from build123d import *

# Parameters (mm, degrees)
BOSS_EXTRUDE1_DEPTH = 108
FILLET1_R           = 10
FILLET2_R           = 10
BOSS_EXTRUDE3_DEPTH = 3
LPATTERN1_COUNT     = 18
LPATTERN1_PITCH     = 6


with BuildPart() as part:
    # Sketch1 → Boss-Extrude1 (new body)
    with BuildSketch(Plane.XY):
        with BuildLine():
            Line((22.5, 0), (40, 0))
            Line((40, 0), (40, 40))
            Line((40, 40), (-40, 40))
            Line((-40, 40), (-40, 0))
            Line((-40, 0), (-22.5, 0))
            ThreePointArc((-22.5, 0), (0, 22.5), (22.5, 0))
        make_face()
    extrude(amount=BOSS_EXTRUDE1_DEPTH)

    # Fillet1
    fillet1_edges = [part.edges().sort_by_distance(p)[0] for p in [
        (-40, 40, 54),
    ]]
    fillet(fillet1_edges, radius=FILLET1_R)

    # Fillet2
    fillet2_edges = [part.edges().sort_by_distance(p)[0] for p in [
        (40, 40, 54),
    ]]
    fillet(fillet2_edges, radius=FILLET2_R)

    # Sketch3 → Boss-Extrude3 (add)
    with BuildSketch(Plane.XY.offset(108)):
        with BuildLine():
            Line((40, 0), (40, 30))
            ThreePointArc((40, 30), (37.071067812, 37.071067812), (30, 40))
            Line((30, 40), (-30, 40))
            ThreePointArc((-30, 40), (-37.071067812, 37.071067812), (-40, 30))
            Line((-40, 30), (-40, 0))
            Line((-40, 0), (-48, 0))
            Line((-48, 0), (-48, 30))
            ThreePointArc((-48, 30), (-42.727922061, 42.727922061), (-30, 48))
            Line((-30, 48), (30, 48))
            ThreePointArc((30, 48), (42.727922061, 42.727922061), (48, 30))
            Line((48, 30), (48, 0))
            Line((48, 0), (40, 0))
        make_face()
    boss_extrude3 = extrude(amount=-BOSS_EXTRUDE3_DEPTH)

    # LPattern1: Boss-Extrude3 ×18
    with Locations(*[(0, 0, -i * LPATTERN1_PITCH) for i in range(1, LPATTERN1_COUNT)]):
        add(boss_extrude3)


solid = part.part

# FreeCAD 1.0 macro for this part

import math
import FreeCAD as App
import Part
import Sketcher
Q = App.Units.Quantity


def edges_at(feature, points):
    """Names of the edges that pass closest to the given points."""
    edges = feature.Shape.Edges
    near = lambda p: min(range(len(edges)), key=lambda i: edges[i].distToShape(Part.Vertex(*p))[0])
    return sorted({f"Edge{near(p) + 1}" for p in points})

doc = App.newDocument("Part")
params = doc.addObject("Spreadsheet::Sheet", "Params")
for row, (alias, value) in enumerate([
    ("sketch1_radius", "22.5 mm"),
    ("sketch1_width", "80 mm"),
    ("sketch1_height", "40 mm"),
    ("pad1_length", "108 mm"),
    ("fillet_radius", "10 mm"),
    ("fillet2_radius", "10 mm"),
    ("sketch2_radius", "18 mm"),
    ("sketch2_radius2", "10 mm"),
    ("sketch2_width", "60 mm"),
    ("sketch2_height", "30 mm"),
    ("pad2_length", "3 mm"),
    ("linearpattern_pitch", "6 mm"),
], start=1):
    params.set(f"A{row}", alias)
    params.set(f"B{row}", "=" + value)
    params.setAlias(f"B{row}", alias)

body = doc.addObject("PartDesign::Body", "Body")

sketch1 = doc.addObject("Sketcher::SketchObject", "Sketch")
body.addObject(sketch1)
sketch1.AttachmentSupport = (doc.XY_Plane, [""])
sketch1.MapMode = "FlatFace"
sketch1.addGeometry(Part.LineSegment(App.Vector(22, 0, 0), App.Vector(40, 0, 0)), False)
sketch1.addGeometry(Part.LineSegment(App.Vector(40, 0, 0), App.Vector(40, 40, 0)), False)
sketch1.addGeometry(Part.LineSegment(App.Vector(40, 40, 0), App.Vector(-40, 40, 0)), False)
sketch1.addGeometry(Part.LineSegment(App.Vector(-40, 40, 0), App.Vector(-40, 0, 0)), False)
sketch1.addGeometry(Part.LineSegment(App.Vector(-40, 0, 0), App.Vector(-22, 0, 0)), False)
sketch1.addGeometry(Part.ArcOfCircle(Part.Circle(App.Vector(0, 0, 0), App.Vector(0, 0, 1), 22), math.radians(0), math.radians(180)), False)
sketch1.addConstraint(Sketcher.Constraint("Coincident", 0, 2, 1, 1))
sketch1.addConstraint(Sketcher.Constraint("Coincident", 1, 2, 2, 1))
sketch1.addConstraint(Sketcher.Constraint("Coincident", 2, 2, 3, 1))
sketch1.addConstraint(Sketcher.Constraint("Coincident", 3, 2, 4, 1))
sketch1.addConstraint(Sketcher.Constraint("Coincident", 4, 2, 5, 2))
sketch1.addConstraint(Sketcher.Constraint("Coincident", 5, 1, 0, 1))
sketch1.addConstraint(Sketcher.Constraint("Horizontal", 0))
sketch1.addConstraint(Sketcher.Constraint("Vertical", 1))
sketch1.addConstraint(Sketcher.Constraint("Horizontal", 2))
sketch1.addConstraint(Sketcher.Constraint("Vertical", 3))
sketch1.addConstraint(Sketcher.Constraint("Horizontal", 4))
sketch1.addConstraint(Sketcher.Constraint("Coincident", 5, 3, -1, 1))
sketch1.addConstraint(Sketcher.Constraint("Symmetric", 0, 2, 3, 2, -1, 1))
sketch1.addConstraint(Sketcher.Constraint("PointOnObject", 0, 2, -1))
sketch1.addConstraint(Sketcher.Constraint("Radius", 5, Q("22.5 mm")))
sketch1.addConstraint(Sketcher.Constraint("DistanceX", 2, 2, 2, 1, Q("80 mm")))
sketch1.addConstraint(Sketcher.Constraint("DistanceY", 1, 1, 1, 2, Q("40 mm")))
sketch1.setExpression("Constraints[14]", "Params.sketch1_radius")
sketch1.setExpression("Constraints[15]", "Params.sketch1_width")
sketch1.setExpression("Constraints[16]", "Params.sketch1_height")
pad1 = doc.addObject("PartDesign::Pad", "Pad")
body.addObject(pad1)
pad1.Profile = sketch1
pad1.setExpression("Length", "Params.pad1_length")
doc.recompute()

fillet = doc.addObject("PartDesign::Fillet", "Fillet")
body.addObject(fillet)
fillet.Base = (pad1, edges_at(pad1, [(-40, 40, 54)]))
fillet.setExpression("Radius", "Params.fillet_radius")
doc.recompute()

fillet2 = doc.addObject("PartDesign::Fillet", "Fillet001")
body.addObject(fillet2)
fillet2.Base = (fillet, edges_at(fillet, [(40, 40, 54)]))
fillet2.setExpression("Radius", "Params.fillet2_radius")

sketch2 = doc.addObject("Sketcher::SketchObject", "Sketch001")
body.addObject(sketch2)
sketch2.AttachmentSupport = (doc.XY_Plane, [""])
sketch2.MapMode = "FlatFace"
sketch2.AttachmentOffset = App.Placement(App.Vector(0, 0, 108), App.Rotation())
sketch2.addGeometry(Part.LineSegment(App.Vector(40, 30, 0), App.Vector(40, 0, 0)), False)
sketch2.addGeometry(Part.LineSegment(App.Vector(40, 0, 0), App.Vector(48, 0, 0)), False)
sketch2.addGeometry(Part.LineSegment(App.Vector(48, 0, 0), App.Vector(48, 30, 0)), False)
sketch2.addGeometry(Part.ArcOfCircle(Part.Circle(App.Vector(30, 30, 0), App.Vector(0, 0, 1), 18), math.radians(0), math.radians(90)), False)
sketch2.addGeometry(Part.LineSegment(App.Vector(30, 48, 0), App.Vector(-30, 48, 0)), False)
sketch2.addGeometry(Part.ArcOfCircle(Part.Circle(App.Vector(-30, 30, 0), App.Vector(0, 0, 1), 18), math.radians(90), math.radians(180)), False)
sketch2.addGeometry(Part.LineSegment(App.Vector(-48, 30, 0), App.Vector(-48, 0, 0)), False)
sketch2.addGeometry(Part.LineSegment(App.Vector(-48, 0, 0), App.Vector(-40, 0, 0)), False)
sketch2.addGeometry(Part.LineSegment(App.Vector(-40, 0, 0), App.Vector(-40, 30, 0)), False)
sketch2.addGeometry(Part.ArcOfCircle(Part.Circle(App.Vector(-30, 30, 0), App.Vector(0, 0, 1), 10), math.radians(90), math.radians(180)), False)
sketch2.addGeometry(Part.LineSegment(App.Vector(-30, 40, 0), App.Vector(30, 40, 0)), False)
sketch2.addGeometry(Part.ArcOfCircle(Part.Circle(App.Vector(30, 30, 0), App.Vector(0, 0, 1), 10), math.radians(0), math.radians(90)), False)
sketch2.addConstraint(Sketcher.Constraint("Coincident", 0, 2, 1, 1))
sketch2.addConstraint(Sketcher.Constraint("Coincident", 1, 2, 2, 1))
sketch2.addConstraint(Sketcher.Constraint("Tangent", 2, 2, 3, 1))
sketch2.addConstraint(Sketcher.Constraint("Tangent", 3, 2, 4, 1))
sketch2.addConstraint(Sketcher.Constraint("Tangent", 4, 2, 5, 1))
sketch2.addConstraint(Sketcher.Constraint("Tangent", 5, 2, 6, 1))
sketch2.addConstraint(Sketcher.Constraint("Coincident", 6, 2, 7, 1))
sketch2.addConstraint(Sketcher.Constraint("Coincident", 7, 2, 8, 1))
sketch2.addConstraint(Sketcher.Constraint("Tangent", 8, 2, 9, 2))
sketch2.addConstraint(Sketcher.Constraint("Tangent", 9, 1, 10, 1))
sketch2.addConstraint(Sketcher.Constraint("Tangent", 10, 2, 11, 2))
sketch2.addConstraint(Sketcher.Constraint("Tangent", 11, 1, 0, 1))
sketch2.addConstraint(Sketcher.Constraint("Vertical", 0))
sketch2.addConstraint(Sketcher.Constraint("Horizontal", 1))
sketch2.addConstraint(Sketcher.Constraint("Vertical", 2))
sketch2.addConstraint(Sketcher.Constraint("Horizontal", 4))
sketch2.addConstraint(Sketcher.Constraint("Vertical", 6))
sketch2.addConstraint(Sketcher.Constraint("Horizontal", 7))
sketch2.addConstraint(Sketcher.Constraint("Vertical", 8))
sketch2.addConstraint(Sketcher.Constraint("Horizontal", 10))
sketch2.addConstraint(Sketcher.Constraint("Coincident", 9, 3, 5, 3))
sketch2.addConstraint(Sketcher.Constraint("Coincident", 11, 3, 3, 3))
sketch2.addConstraint(Sketcher.Constraint("Equal", 3, 5))
sketch2.addConstraint(Sketcher.Constraint("Symmetric", 1, 2, 6, 2, -1, 1))
sketch2.addConstraint(Sketcher.Constraint("PointOnObject", 0, 2, -1))
sketch2.addConstraint(Sketcher.Constraint("Radius", 3, Q("18 mm")))
sketch2.addConstraint(Sketcher.Constraint("Radius", 9, Q("10 mm")))
sketch2.addConstraint(Sketcher.Constraint("DistanceX", 4, 2, 4, 1, Q("60 mm")))
sketch2.addConstraint(Sketcher.Constraint("DistanceY", 0, 2, 0, 1, Q("30 mm")))
sketch2.setExpression("Constraints[25]", "Params.sketch2_radius")
sketch2.setExpression("Constraints[26]", "Params.sketch2_radius2")
sketch2.setExpression("Constraints[27]", "Params.sketch2_width")
sketch2.setExpression("Constraints[28]", "Params.sketch2_height")
pad2 = doc.addObject("PartDesign::Pad", "Pad001")
body.addObject(pad2)
pad2.Profile = sketch2
pad2.setExpression("Length", "Params.pad2_length")
pad2.Reversed = True
doc.recompute()

linearpattern = doc.addObject("PartDesign::LinearPattern", "LinearPattern")
body.addObject(linearpattern)
linearpattern.Originals = [pad2]
linearpattern.Direction = (doc.Z_Axis, [""])
linearpattern.Mode = "offset"
linearpattern.setExpression("Offset", "Params.linearpattern_pitch")
linearpattern.Occurrences = 18
linearpattern.Reversed = True
body.Tip = linearpattern

doc.recompute()
